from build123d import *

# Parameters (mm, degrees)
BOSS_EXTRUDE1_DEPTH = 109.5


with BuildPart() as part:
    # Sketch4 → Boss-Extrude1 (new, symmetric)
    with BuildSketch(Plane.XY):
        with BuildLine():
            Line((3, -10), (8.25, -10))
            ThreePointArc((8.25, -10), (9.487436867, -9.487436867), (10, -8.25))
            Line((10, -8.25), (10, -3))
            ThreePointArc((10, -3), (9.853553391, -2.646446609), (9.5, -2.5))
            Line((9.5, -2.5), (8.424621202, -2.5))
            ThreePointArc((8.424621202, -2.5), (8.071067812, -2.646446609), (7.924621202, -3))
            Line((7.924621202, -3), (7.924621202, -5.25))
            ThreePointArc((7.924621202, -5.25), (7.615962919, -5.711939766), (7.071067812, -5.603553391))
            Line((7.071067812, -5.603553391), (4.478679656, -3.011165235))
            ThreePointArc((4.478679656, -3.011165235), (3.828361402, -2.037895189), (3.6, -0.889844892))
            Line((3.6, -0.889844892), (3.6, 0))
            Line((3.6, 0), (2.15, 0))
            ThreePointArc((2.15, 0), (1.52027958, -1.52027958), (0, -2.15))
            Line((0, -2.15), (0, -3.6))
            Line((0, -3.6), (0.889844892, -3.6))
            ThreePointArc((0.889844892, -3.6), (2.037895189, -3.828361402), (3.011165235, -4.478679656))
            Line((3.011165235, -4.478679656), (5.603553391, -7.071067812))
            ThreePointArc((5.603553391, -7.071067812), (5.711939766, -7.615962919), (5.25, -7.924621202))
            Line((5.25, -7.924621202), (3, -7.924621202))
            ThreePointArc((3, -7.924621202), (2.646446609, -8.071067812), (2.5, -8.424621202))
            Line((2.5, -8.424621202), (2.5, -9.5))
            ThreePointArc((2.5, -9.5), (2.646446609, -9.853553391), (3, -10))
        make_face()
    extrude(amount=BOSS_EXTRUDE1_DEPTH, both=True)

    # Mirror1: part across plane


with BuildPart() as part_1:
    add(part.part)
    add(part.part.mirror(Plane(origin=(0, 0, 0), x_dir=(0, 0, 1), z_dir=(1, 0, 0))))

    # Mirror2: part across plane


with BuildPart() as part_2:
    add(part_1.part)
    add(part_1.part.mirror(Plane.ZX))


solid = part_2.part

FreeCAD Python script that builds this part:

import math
import FreeCAD as App
import Part
import Sketcher

V = App.Vector
Q = App.Units.Quantity

doc = App.newDocument("Part")
body = doc.addObject("PartDesign::Body", "Body")

sketch1 = body.newObject("Sketcher::SketchObject", "Sketch")
sketch1.AttachmentSupport = (doc.getObject("XY_Plane"), [""])
sketch1.MapMode = "FlatFace"
sketch1.addGeometry(Part.LineSegment(V(3, -10, 0), V(8.25, -10, 0)), False)
sketch1.addGeometry(Part.ArcOfCircle(Part.Circle(V(8.25, -8.25, 0), V(0, 0, 1), 1.75), math.radians(-90), math.radians(0)), False)
sketch1.addGeometry(Part.LineSegment(V(10, -8.25, 0), V(10, -3, 0)), False)
sketch1.addGeometry(Part.ArcOfCircle(Part.Circle(V(9.5, -3, 0), V(0, 0, 1), 0.5), math.radians(0), math.radians(90)), False)
sketch1.addGeometry(Part.LineSegment(V(9.5, -2.5, 0), V(8.42, -2.5, 0)), False)
sketch1.addGeometry(Part.ArcOfCircle(Part.Circle(V(8.42, -3, 0), V(0, 0, 1), 0.5), math.radians(90), math.radians(180)), False)
sketch1.addGeometry(Part.LineSegment(V(7.92, -3, 0), V(7.92, -5.25, 0)), False)
sketch1.addGeometry(Part.ArcOfCircle(Part.Circle(V(7.42, -5.25, 0), V(0, 0, 1), 0.5), math.radians(-135), math.radians(0)), False)
sketch1.addGeometry(Part.LineSegment(V(7.07, -5.6, 0), V(4.48, -3.01, 0)), False)
sketch1.addGeometry(Part.ArcOfCircle(Part.Circle(V(6.6, -0.89, 0), V(0, 0, 1), 3), math.radians(180), math.radians(225)), False)
sketch1.addGeometry(Part.LineSegment(V(3.6, -0.89, 0), V(3.6, 0, 0)), False)
sketch1.addGeometry(Part.LineSegment(V(3.6, 0, 0), V(2.15, 0, 0)), False)
sketch1.addGeometry(Part.ArcOfCircle(Part.Circle(V(0, 0, 0), V(0, 0, 1), 2.15), math.radians(-90), math.radians(0)), False)
sketch1.addGeometry(Part.LineSegment(V(0, -2.15, 0), V(0, -3.6, 0)), False)
sketch1.addGeometry(Part.LineSegment(V(0, -3.6, 0), V(0.89, -3.6, 0)), False)
sketch1.addGeometry(Part.ArcOfCircle(Part.Circle(V(0.89, -6.6, 0), V(0, 0, 1), 3), math.radians(45), math.radians(90)), False)
sketch1.addGeometry(Part.LineSegment(V(3.01, -4.48, 0), V(5.6, -7.07, 0)), False)
sketch1.addGeometry(Part.ArcOfCircle(Part.Circle(V(5.25, -7.42, 0), V(0, 0, 1), 0.5), math.radians(-90), math.radians(45)), False)
sketch1.addGeometry(Part.LineSegment(V(5.25, -7.92, 0), V(3, -7.92, 0)), False)
sketch1.addGeometry(Part.ArcOfCircle(Part.Circle(V(3, -8.42, 0), V(0, 0, 1), 0.5), math.radians(90), math.radians(180)), False)
sketch1.addGeometry(Part.LineSegment(V(2.5, -8.42, 0), V(2.5, -9.5, 0)), False)
sketch1.addGeometry(Part.ArcOfCircle(Part.Circle(V(3, -9.5, 0), V(0, 0, 1), 0.5), math.radians(180), math.radians(270)), False)
sketch1.addConstraint(Sketcher.Constraint("Tangent", 0, 2, 1, 1))
sketch1.addConstraint(Sketcher.Constraint("Tangent", 1, 2, 2, 1))
sketch1.addConstraint(Sketcher.Constraint("Tangent", 2, 2, 3, 1))
sketch1.addConstraint(Sketcher.Constraint("Tangent", 3, 2, 4, 1))
sketch1.addConstraint(Sketcher.Constraint("Tangent", 4, 2, 5, 1))
sketch1.addConstraint(Sketcher.Constraint("Tangent", 5, 2, 6, 1))
sketch1.addConstraint(Sketcher.Constraint("Tangent", 6, 2, 7, 2))
sketch1.addConstraint(Sketcher.Constraint("Tangent", 7, 1, 8, 1))
sketch1.addConstraint(Sketcher.Constraint("Tangent", 8, 2, 9, 2))
sketch1.addConstraint(Sketcher.Constraint("Tangent", 9, 1, 10, 1))
sketch1.addConstraint(Sketcher.Constraint("Coincident", 10, 2, 11, 1))
sketch1.addConstraint(Sketcher.Constraint("Coincident", 11, 2, 12, 2))
sketch1.addConstraint(Sketcher.Constraint("Coincident", 12, 1, 13, 1))
sketch1.addConstraint(Sketcher.Constraint("Coincident", 13, 2, 14, 1))
sketch1.addConstraint(Sketcher.Constraint("Tangent", 14, 2, 15, 2))
sketch1.addConstraint(Sketcher.Constraint("Tangent", 15, 1, 16, 1))
sketch1.addConstraint(Sketcher.Constraint("Tangent", 16, 2, 17, 2))
sketch1.addConstraint(Sketcher.Constraint("Tangent", 17, 1, 18, 1))
sketch1.addConstraint(Sketcher.Constraint("Tangent", 18, 2, 19, 1))
sketch1.addConstraint(Sketcher.Constraint("Tangent", 19, 2, 20, 1))
sketch1.addConstraint(Sketcher.Constraint("Tangent", 20, 2, 21, 1))
sketch1.addConstraint(Sketcher.Constraint("Tangent", 21, 2, 0, 1))
sketch1.addConstraint(Sketcher.Constraint("Horizontal", 0))
sketch1.addConstraint(Sketcher.Constraint("Vertical", 2))
sketch1.addConstraint(Sketcher.Constraint("Horizontal", 4))
sketch1.addConstraint(Sketcher.Constraint("Vertical", 6))
sketch1.addConstraint(Sketcher.Constraint("Vertical", 10))
sketch1.addConstraint(Sketcher.Constraint("Horizontal", 11))
sketch1.addConstraint(Sketcher.Constraint("Vertical", 13))
sketch1.addConstraint(Sketcher.Constraint("Horizontal", 14))
sketch1.addConstraint(Sketcher.Constraint("Horizontal", 18))
sketch1.addConstraint(Sketcher.Constraint("Vertical", 20))
sketch1.addConstraint(Sketcher.Constraint("Coincident", 12, 3, -1, 1))
sketch1.addConstraint(Sketcher.Constraint("Equal", 3, 5))
sketch1.addConstraint(Sketcher.Constraint("Equal", 5, 7))
sketch1.addConstraint(Sketcher.Constraint("Equal", 9, 15))
sketch1.addConstraint(Sketcher.Constraint("Equal", 7, 17))
sketch1.addConstraint(Sketcher.Constraint("Equal", 17, 19))
sketch1.addConstraint(Sketcher.Constraint("Equal", 19, 21))
sketch1.addConstraint(Sketcher.Constraint("PointOnObject", 10, 2, -1))
sketch1.addConstraint(Sketcher.Constraint("PointOnObject", 12, 1, -2))
sketch1.addConstraint(Sketcher.Constraint("Parallel", 8, 16))
sketch1.addConstraint(Sketcher.Constraint("Equal", 0, 2))
sketch1.addConstraint(Sketcher.Constraint("Equal", 18, 6))
sketch1.addConstraint(Sketcher.Constraint("Equal", 14, 10))
sketch1.addConstraint(Sketcher.Constraint("Equal", 11, 13))
sketch1.addConstraint(Sketcher.Constraint("Equal", 4, 20))
sketch1.addConstraint(Sketcher.Constraint("Equal", 8, 16))
sketch1.addConstraint(Sketcher.Constraint("Radius", 9, Q("3 mm")))
sketch1.addConstraint(Sketcher.Constraint("Radius", 3, Q("0.5 mm")))
sketch1.addConstraint(Sketcher.Constraint("Radius", 1, Q("1.75 mm")))
sketch1.addConstraint(Sketcher.Constraint("Radius", 12, Q("2.15 mm")))
sketch1.addConstraint(Sketcher.Constraint("DistanceY", 3, 3, -1, 1, Q("3 mm")))
sketch1.addConstraint(Sketcher.Constraint("DistanceY", 0, 2, -1, 1, Q("10 mm")))
sketch1.addConstraint(Sketcher.Constraint("DistanceY", 1, 3, 7, 3, Q("3 mm")))
sketch1.addConstraint(Sketcher.Constraint("DistanceX", 11, 2, 11, 1, Q("1.45 mm")))
sketch1.addConstraint(Sketcher.Constraint("DistanceX", 4, 2, 4, 1, Q("1.075379 mm")))
pad1 = body.newObject("PartDesign::Pad", "Pad")
pad1.Profile = sketch1
pad1.Length = 219
pad1.Midplane = True
body2 = doc.addObject("PartDesign::Body", "Body001")
doc.recompute()

body2.BaseFeature = body
doc.recompute()

mirroring = doc.addObject("Part::Mirroring", "Mirroring")
mirroring.Source = body
mirroring.Base = V(0, 0, 0)
mirroring.Normal = V(1, 0, 0)
body3 = doc.addObject("PartDesign::Body", "Body002")
body3.BaseFeature = mirroring
boolean = body2.newObject("PartDesign::Boolean", "Boolean")
boolean.Type = "Fuse"
boolean.addObjects([body3])
doc.recompute()
body4 = doc.addObject("PartDesign::Body", "Body003")
doc.recompute()

body4.BaseFeature = body2
doc.recompute()

mirroring2 = doc.addObject("Part::Mirroring", "Mirroring001")
mirroring2.Source = body2
mirroring2.Base = V(0, 0, 0)
mirroring2.Normal = V(0, 1, 0)
body5 = doc.addObject("PartDesign::Body", "Body004")
body5.BaseFeature = mirroring2
boolean2 = body4.newObject("PartDesign::Boolean", "Boolean001")
boolean2.Type = "Fuse"
boolean2.addObjects([body5])
doc.recompute()
mirroring.Visibility = False
mirroring2.Visibility = False

doc.recompute()
